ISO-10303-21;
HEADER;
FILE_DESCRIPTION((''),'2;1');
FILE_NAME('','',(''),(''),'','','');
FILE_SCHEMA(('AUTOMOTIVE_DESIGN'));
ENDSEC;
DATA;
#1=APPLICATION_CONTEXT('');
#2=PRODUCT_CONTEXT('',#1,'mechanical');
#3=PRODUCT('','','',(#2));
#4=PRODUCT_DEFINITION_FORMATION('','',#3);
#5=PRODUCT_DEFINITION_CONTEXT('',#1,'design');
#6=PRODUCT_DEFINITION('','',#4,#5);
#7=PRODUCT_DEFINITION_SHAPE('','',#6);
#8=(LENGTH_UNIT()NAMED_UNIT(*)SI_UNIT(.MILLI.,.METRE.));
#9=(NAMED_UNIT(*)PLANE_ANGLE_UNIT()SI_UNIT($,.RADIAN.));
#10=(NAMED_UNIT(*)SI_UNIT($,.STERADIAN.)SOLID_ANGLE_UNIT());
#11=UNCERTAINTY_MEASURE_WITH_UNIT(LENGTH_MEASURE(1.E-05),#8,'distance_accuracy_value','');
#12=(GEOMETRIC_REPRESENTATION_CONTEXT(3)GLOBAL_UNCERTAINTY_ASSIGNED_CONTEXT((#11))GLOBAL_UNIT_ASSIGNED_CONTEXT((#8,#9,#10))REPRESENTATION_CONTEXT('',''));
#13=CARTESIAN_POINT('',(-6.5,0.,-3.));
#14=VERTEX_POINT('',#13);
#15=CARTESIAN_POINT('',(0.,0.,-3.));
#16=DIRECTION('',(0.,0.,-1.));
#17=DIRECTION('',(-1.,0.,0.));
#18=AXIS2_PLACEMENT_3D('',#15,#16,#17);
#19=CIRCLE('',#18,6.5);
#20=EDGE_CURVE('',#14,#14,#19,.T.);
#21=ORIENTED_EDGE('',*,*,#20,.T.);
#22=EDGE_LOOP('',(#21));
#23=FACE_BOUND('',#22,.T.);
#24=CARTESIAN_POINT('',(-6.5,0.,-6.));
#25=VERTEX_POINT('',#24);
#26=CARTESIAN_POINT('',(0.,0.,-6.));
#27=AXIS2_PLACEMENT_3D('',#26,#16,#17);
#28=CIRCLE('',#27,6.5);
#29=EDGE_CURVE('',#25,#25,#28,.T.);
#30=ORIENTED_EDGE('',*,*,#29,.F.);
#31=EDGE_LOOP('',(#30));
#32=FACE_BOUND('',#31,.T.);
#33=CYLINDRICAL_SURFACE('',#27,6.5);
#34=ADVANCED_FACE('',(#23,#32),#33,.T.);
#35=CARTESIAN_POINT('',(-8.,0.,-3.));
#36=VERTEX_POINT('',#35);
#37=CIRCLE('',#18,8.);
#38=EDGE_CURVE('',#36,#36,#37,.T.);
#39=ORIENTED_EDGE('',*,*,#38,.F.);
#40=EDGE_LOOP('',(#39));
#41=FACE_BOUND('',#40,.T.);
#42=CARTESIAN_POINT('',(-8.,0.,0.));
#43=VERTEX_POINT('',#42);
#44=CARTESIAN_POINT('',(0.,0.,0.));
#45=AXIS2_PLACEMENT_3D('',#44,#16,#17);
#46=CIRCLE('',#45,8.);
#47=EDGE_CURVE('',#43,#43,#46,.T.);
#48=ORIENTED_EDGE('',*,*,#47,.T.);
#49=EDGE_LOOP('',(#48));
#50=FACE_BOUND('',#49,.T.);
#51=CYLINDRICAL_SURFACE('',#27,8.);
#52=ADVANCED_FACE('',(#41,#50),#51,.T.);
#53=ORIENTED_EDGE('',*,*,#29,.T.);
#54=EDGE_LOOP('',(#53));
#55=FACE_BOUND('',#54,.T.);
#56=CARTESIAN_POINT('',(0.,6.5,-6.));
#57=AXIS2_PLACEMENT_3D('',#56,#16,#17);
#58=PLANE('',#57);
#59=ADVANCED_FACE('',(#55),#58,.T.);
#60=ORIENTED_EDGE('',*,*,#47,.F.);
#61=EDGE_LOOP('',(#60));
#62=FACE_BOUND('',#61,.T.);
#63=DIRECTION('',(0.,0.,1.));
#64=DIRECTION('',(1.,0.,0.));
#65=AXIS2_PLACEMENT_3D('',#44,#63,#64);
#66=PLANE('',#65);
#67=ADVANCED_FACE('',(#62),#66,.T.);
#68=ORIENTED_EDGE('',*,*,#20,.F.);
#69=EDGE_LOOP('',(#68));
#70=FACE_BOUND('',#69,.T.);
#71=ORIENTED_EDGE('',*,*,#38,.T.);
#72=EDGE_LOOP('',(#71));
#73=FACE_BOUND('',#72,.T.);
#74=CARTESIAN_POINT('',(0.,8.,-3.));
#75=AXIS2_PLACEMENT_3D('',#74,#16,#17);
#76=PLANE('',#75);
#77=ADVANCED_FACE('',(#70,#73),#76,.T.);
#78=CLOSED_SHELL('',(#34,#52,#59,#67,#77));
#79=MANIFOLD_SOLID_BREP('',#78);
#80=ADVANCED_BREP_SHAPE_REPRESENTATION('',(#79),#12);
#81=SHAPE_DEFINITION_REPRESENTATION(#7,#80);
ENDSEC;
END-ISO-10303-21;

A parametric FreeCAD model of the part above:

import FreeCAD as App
import Part
import Sketcher


def add_polygon(sketch, points):
    """Adds a closed chain of lines whose ends are joined by coincident constraints."""
    first, n = sketch.GeometryCount, len(points)
    for a, b in zip(points, points[1:] + points[:1]):
        sketch.addGeometry(Part.LineSegment(App.Vector(*a, 0), App.Vector(*b, 0)), False)
    for i in range(n):
        sketch.addConstraint(Sketcher.Constraint("Coincident", first + i, 2, first + (i + 1) % n, 1))

doc = App.newDocument("Part")
body = doc.addObject("PartDesign::Body", "Body")

sketch1 = doc.addObject("Sketcher::SketchObject", "Sketch")
body.addObject(sketch1)
sketch1.AttachmentSupport = (doc.YZ_Plane, [""])
sketch1.MapMode = "FlatFace"
add_polygon(sketch1, [(8, -3), (8, 0), (0, 0), (0, -6), (6.5, -6), (6.5, -3)])
sketch1.addConstraint(Sketcher.Constraint("Vertical", 0))
sketch1.addConstraint(Sketcher.Constraint("Horizontal", 1))
sketch1.addConstraint(Sketcher.Constraint("Vertical", 2))
sketch1.addConstraint(Sketcher.Constraint("Horizontal", 3))
sketch1.addConstraint(Sketcher.Constraint("Vertical", 4))
sketch1.addConstraint(Sketcher.Constraint("Horizontal", 5))
sketch1.addConstraint(Sketcher.Constraint("Coincident", 1, 2, -1, 1))
sketch1.addConstraint(Sketcher.Constraint("Equal", 0, 4))
sketch1.addConstraint(Sketcher.Constraint("DistanceX", 1, 2, 1, 1, 8.0))
sketch1.addConstraint(Sketcher.Constraint("DistanceY", 0, 1, 0, 2, 3.0))
sketch1.addConstraint(Sketcher.Constraint("DistanceX", 3, 1, 3, 2, 6.5))
revolution = doc.addObject("PartDesign::Revolution", "Revolution")
body.addObject(revolution)
revolution.Profile = sketch1
revolution.ReferenceAxis = (sketch1, ["V_Axis"])
revolution.Angle = 360

doc.recompute()
